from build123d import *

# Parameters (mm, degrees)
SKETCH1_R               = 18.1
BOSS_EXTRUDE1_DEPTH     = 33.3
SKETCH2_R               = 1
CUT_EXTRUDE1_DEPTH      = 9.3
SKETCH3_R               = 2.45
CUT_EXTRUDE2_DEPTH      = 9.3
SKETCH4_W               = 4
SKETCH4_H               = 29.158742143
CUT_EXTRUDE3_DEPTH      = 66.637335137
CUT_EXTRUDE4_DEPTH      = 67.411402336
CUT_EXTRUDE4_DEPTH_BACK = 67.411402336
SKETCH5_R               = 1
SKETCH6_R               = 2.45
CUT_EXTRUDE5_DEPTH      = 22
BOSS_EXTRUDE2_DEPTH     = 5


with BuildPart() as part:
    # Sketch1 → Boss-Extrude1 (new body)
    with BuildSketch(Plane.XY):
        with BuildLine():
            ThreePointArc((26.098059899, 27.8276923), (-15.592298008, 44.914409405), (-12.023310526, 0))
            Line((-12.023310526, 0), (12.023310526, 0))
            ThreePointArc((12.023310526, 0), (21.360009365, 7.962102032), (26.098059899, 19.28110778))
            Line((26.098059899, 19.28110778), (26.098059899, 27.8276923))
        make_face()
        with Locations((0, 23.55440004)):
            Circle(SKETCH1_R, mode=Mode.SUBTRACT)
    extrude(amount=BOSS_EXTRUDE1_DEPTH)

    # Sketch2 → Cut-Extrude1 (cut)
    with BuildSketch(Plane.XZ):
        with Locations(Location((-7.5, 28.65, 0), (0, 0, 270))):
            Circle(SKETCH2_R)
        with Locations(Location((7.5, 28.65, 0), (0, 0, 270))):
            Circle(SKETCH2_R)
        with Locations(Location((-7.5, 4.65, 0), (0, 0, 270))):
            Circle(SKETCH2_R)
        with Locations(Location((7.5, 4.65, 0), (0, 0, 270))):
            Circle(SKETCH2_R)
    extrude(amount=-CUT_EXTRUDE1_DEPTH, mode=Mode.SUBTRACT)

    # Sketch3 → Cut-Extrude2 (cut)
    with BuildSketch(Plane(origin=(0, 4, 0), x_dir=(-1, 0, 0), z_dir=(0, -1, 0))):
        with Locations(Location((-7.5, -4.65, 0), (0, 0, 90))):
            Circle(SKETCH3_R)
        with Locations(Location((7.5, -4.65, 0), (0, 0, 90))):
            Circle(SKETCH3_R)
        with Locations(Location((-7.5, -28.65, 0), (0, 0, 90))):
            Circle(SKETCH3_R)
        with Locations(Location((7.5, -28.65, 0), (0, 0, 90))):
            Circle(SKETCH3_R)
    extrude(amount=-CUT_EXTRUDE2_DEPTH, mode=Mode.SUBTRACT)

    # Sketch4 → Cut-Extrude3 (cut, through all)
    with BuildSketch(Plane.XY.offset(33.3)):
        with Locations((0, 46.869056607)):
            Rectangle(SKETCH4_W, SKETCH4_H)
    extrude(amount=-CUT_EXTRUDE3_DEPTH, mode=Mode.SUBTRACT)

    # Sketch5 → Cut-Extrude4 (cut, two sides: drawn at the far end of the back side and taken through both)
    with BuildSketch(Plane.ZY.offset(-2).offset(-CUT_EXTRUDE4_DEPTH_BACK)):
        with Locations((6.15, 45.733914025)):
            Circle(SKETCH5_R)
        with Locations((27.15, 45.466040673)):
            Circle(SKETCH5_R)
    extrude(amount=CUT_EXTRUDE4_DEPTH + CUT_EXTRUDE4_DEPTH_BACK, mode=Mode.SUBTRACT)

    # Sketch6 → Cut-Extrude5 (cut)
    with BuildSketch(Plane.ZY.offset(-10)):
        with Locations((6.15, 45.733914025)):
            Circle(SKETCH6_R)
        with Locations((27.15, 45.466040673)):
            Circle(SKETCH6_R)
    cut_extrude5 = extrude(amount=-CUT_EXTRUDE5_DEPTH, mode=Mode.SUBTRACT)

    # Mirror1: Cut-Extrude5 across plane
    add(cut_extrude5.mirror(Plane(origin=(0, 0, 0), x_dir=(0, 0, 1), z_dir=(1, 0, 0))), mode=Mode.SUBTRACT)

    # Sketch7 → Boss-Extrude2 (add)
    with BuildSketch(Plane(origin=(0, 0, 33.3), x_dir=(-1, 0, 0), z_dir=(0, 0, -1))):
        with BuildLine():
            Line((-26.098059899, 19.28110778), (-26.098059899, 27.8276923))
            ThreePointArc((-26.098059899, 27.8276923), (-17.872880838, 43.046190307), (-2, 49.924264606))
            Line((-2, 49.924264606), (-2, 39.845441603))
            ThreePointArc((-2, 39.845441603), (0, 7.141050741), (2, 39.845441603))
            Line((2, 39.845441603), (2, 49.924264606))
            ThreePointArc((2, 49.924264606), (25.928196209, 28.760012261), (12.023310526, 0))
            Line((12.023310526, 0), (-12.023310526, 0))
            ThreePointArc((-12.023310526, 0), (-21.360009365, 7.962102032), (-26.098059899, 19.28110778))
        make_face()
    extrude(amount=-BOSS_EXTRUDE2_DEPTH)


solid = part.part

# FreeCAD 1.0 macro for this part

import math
import FreeCAD as App
import Part
import Sketcher
Q = App.Units.Quantity

doc = App.newDocument("Part")
params = doc.addObject("Spreadsheet::Sheet", "Params")
for row, (alias, value) in enumerate([
    ("sketch1_diameter", "36.2 mm"),
    ("pad1_length", "33.3 mm"),
    ("sketch2_diameter", "2 mm"),
    ("pocket1_length", "9.3 mm"),
    ("sketch3_diameter", "4.9 mm"),
    ("pocket2_length", "9.3 mm"),
    ("sketch4_width", "4 mm"),
    ("sketch5_diameter", "2 mm"),
    ("sketch6_diameter", "4.9 mm"),
    ("pocket5_length", "22 mm"),
    ("pad2_length", "5 mm"),
], start=1):
    params.set(f"A{row}", alias)
    params.set(f"B{row}", "=" + value)
    params.setAlias(f"B{row}", alias)

body = doc.addObject("PartDesign::Body", "Body")

# Sketch on XY plane
sketch1 = doc.addObject("Sketcher::SketchObject", "Sketch")
body.addObject(sketch1)
sketch1.AttachmentSupport = (doc.XY_Plane, [""])
sketch1.MapMode = "FlatFace"
sketch1.addGeometry([
    Part.ArcOfCircle(Part.Circle(App.Vector(0, 24, 0), App.Vector(0, 0, 1), 26), math.radians(9), math.radians(243)),  # 0
    Part.LineSegment(App.Vector(-12, 0, 0), App.Vector(12, 0, 0)),  # 1
    Part.ArcOfCircle(Part.Circle(App.Vector(0, 24, 0), App.Vector(0, 0, 1), 26), math.radians(-63), math.radians(-9)),  # 2
    Part.LineSegment(App.Vector(26, 19, 0), App.Vector(26, 28, 0)),  # 3
    Part.Circle(App.Vector(0, 24, 0), App.Vector(0, 0, 1), 18),  # 4
], False)
sketch1.addConstraint([
    Sketcher.Constraint("Coincident", 0, 2, 1, 1),
    Sketcher.Constraint("Coincident", 1, 2, 2, 1),
    Sketcher.Constraint("Coincident", 2, 2, 3, 1),
    Sketcher.Constraint("Coincident", 3, 2, 0, 1),
    Sketcher.Constraint("Horizontal", 1),
    Sketcher.Constraint("Vertical", 3),
    Sketcher.Constraint("Coincident", 2, 3, 0, 3),
    Sketcher.Constraint("Coincident", 4, 3, 0, 3),
    Sketcher.Constraint("Equal", 0, 2),
    Sketcher.Constraint("Symmetric", 0, 2, 1, 2, -1, 1),
    Sketcher.Constraint("Diameter", 4, Q("36.2 mm")),
    Sketcher.Constraint("Radius", 0, Q("26.4456 mm")),
    Sketcher.Constraint("DistanceX", 1, 1, 1, 2, Q("24.046621 mm")),
    Sketcher.Constraint("DistanceY", 3, 1, 3, 2, Q("8.546585 mm")),
])
sketch1.setExpression("Constraints[10]", "Params.sketch1_diameter")
pad1 = doc.addObject("PartDesign::Pad", "Pad")
body.addObject(pad1)
pad1.Profile = sketch1
pad1.setExpression("Length", "Params.pad1_length")

# Sketch on XZ plane
sketch2 = doc.addObject("Sketcher::SketchObject", "Sketch001")
body.addObject(sketch2)
sketch2.AttachmentSupport = (doc.XZ_Plane, [""])
sketch2.MapMode = "FlatFace"
sketch2.addGeometry([
    Part.Circle(App.Vector(-7.5, 28.6, 0), App.Vector(0, 0, 1), 1),
    Part.Circle(App.Vector(7.5, 28.6, 0), App.Vector(0, 0, 1), 1),
    Part.Circle(App.Vector(-7.5, 4.7, 0), App.Vector(0, 0, 1), 1),
    Part.Circle(App.Vector(7.5, 4.7, 0), App.Vector(0, 0, 1), 1),
], False)
sketch2.addConstraint([
    Sketcher.Constraint("Equal", 0, 1),
    Sketcher.Constraint("Equal", 1, 2),
    Sketcher.Constraint("Equal", 2, 3),
    Sketcher.Constraint("Symmetric", 0, 3, 1, 3, -2),
    Sketcher.Constraint("Symmetric", 2, 3, 3, 3, -2),
    Sketcher.Constraint("Vertical", 0, 3, 2, 3),
    Sketcher.Constraint("Diameter", 0, Q("2 mm")),
    Sketcher.Constraint("DistanceX", 0, 3, 1, 3, Q("15 mm")),
    Sketcher.Constraint("DistanceY", 2, 3, 0, 3, Q("24 mm")),
    Sketcher.Constraint("DistanceY", -1, 1, 0, 3, Q("28.65 mm")),
])
sketch2.setExpression("Constraints[6]", "Params.sketch2_diameter")
pocket1 = doc.addObject("PartDesign::Pocket", "Pocket")
body.addObject(pocket1)
pocket1.Profile = sketch2
pocket1.setExpression("Length", "Params.pocket1_length")

# Sketch on XZ plane
sketch3 = doc.addObject("Sketcher::SketchObject", "Sketch002")
body.addObject(sketch3)
sketch3.AttachmentSupport = (doc.XZ_Plane, [""])
sketch3.MapMode = "FlatFace"
sketch3.AttachmentOffset = App.Placement(App.Vector(0, 0, -4), App.Rotation())
sketch3.addGeometry([
    Part.Circle(App.Vector(7.5, 4.7, 0), App.Vector(0, 0, 1), 2.5),
    Part.Circle(App.Vector(-7.5, 4.7, 0), App.Vector(0, 0, 1), 2.5),
    Part.Circle(App.Vector(7.5, 28.6, 0), App.Vector(0, 0, 1), 2.5),
    Part.Circle(App.Vector(-7.5, 28.6, 0), App.Vector(0, 0, 1), 2.5),
], False)
sketch3.addConstraint([
    Sketcher.Constraint("Equal", 0, 1),
    Sketcher.Constraint("Equal", 1, 2),
    Sketcher.Constraint("Equal", 2, 3),
    Sketcher.Constraint("Symmetric", 0, 3, 1, 3, -2),
    Sketcher.Constraint("Symmetric", 2, 3, 3, 3, -2),
    Sketcher.Constraint("Vertical", 0, 3, 2, 3),
    Sketcher.Constraint("Diameter", 0, Q("4.9 mm")),
    Sketcher.Constraint("DistanceX", 1, 3, 0, 3, Q("15 mm")),
    Sketcher.Constraint("DistanceY", 0, 3, 2, 3, Q("24 mm")),
    Sketcher.Constraint("DistanceY", -1, 1, 0, 3, Q("4.65 mm")),
])
sketch3.setExpression("Constraints[6]", "Params.sketch3_diameter")
pocket2 = doc.addObject("PartDesign::Pocket", "Pocket001")
body.addObject(pocket2)
pocket2.Profile = sketch3
pocket2.setExpression("Length", "Params.pocket2_length")

# Sketch on XY plane
sketch4 = doc.addObject("Sketcher::SketchObject", "Sketch003")
body.addObject(sketch4)
sketch4.AttachmentSupport = (doc.XY_Plane, [""])
sketch4.MapMode = "FlatFace"
sketch4.AttachmentOffset = App.Placement(App.Vector(0, 0, 33.3), App.Rotation())
sketch4.addGeometry([
    Part.LineSegment(App.Vector(-2, 61.4, 0), App.Vector(-2, 32.3, 0)),
    Part.LineSegment(App.Vector(-2, 32.3, 0), App.Vector(2, 32.3, 0)),
    Part.LineSegment(App.Vector(2, 32.3, 0), App.Vector(2, 61.4, 0)),
    Part.LineSegment(App.Vector(2, 61.4, 0), App.Vector(-2, 61.4, 0)),
], False)
sketch4.addConstraint([
    Sketcher.Constraint("Coincident", 0, 2, 1, 1),
    Sketcher.Constraint("Coincident", 1, 2, 2, 1),
    Sketcher.Constraint("Coincident", 2, 2, 3, 1),
    Sketcher.Constraint("Coincident", 3, 2, 0, 1),
    Sketcher.Constraint("Vertical", 0),
    Sketcher.Constraint("Horizontal", 1),
    Sketcher.Constraint("Vertical", 2),
    Sketcher.Constraint("Horizontal", 3),
    Sketcher.Constraint("DistanceX", 1, 1, 1, 2, Q("4 mm")),
    Sketcher.Constraint("DistanceX", 0, 2, -1, 1, Q("2 mm")),
    Sketcher.Constraint("DistanceY", 0, 2, 0, 1, Q("29.158742 mm")),
    Sketcher.Constraint("DistanceY", -1, 1, 0, 2, Q("32.289686 mm")),
])
sketch4.setExpression("Constraints[8]", "Params.sketch4_width")
pocket3 = doc.addObject("PartDesign::Pocket", "Pocket002")
body.addObject(pocket3)
pocket3.Profile = sketch4
pocket3.Type = "ThroughAll"

# Sketch on YZ plane
sketch5 = doc.addObject("Sketcher::SketchObject", "Sketch004")
body.addObject(sketch5)
sketch5.AttachmentSupport = (doc.YZ_Plane, [""])
sketch5.MapMode = "FlatFace"
sketch5.AttachmentOffset = App.Placement(App.Vector(0, 0, 2), App.Rotation())
sketch5.addGeometry([
    Part.Circle(App.Vector(45.7, 6.2, 0), App.Vector(0, 0, 1), 1),
    Part.Circle(App.Vector(45.5, 27.1, 0), App.Vector(0, 0, 1), 1),
], False)
sketch5.addConstraint([
    Sketcher.Constraint("Equal", 0, 1),
    Sketcher.Constraint("Diameter", 0, Q("2 mm")),
    Sketcher.Constraint("DistanceY", 0, 3, 1, 3, Q("21 mm")),
    Sketcher.Constraint("DistanceY", -1, 1, 0, 3, Q("6.15 mm")),
    Sketcher.Constraint("DistanceX", -1, 1, 1, 3, Q("45.466041 mm")),
    Sketcher.Constraint("DistanceX", -1, 1, 0, 3, Q("45.733914 mm")),
])
sketch5.setExpression("Constraints[1]", "Params.sketch5_diameter")
pocket4 = doc.addObject("PartDesign::Pocket", "Pocket003")
body.addObject(pocket4)
pocket4.Profile = sketch5
pocket4.Type = "ThroughAll"
pocket4.Midplane = True

# Sketch on YZ plane
sketch6 = doc.addObject("Sketcher::SketchObject", "Sketch005")
body.addObject(sketch6)
sketch6.AttachmentSupport = (doc.YZ_Plane, [""])
sketch6.MapMode = "FlatFace"
sketch6.AttachmentOffset = App.Placement(App.Vector(0, 0, 10), App.Rotation())
sketch6.addGeometry([
    Part.Circle(App.Vector(45.7, 6.2, 0), App.Vector(0, 0, 1), 2.5),
    Part.Circle(App.Vector(45.5, 27.1, 0), App.Vector(0, 0, 1), 2.5),
], False)
sketch6.addConstraint([
    Sketcher.Constraint("Equal", 0, 1),
    Sketcher.Constraint("Diameter", 0, Q("4.9 mm")),
    Sketcher.Constraint("DistanceY", 0, 3, 1, 3, Q("21 mm")),
    Sketcher.Constraint("DistanceY", -1, 1, 0, 3, Q("6.15 mm")),
    Sketcher.Constraint("DistanceX", -1, 1, 1, 3, Q("45.466041 mm")),
    Sketcher.Constraint("DistanceX", -1, 1, 0, 3, Q("45.733914 mm")),
])
sketch6.setExpression("Constraints[1]", "Params.sketch6_diameter")
pocket5 = doc.addObject("PartDesign::Pocket", "Pocket004")
body.addObject(pocket5)
pocket5.Profile = sketch6
pocket5.setExpression("Length", "Params.pocket5_length")
pocket5.Reversed = True
doc.recompute()

mirrored = doc.addObject("PartDesign::Mirrored", "Mirrored")
body.addObject(mirrored)
mirrored.Originals = [pocket5]
mirrored.MirrorPlane = (doc.YZ_Plane, [""])
body.Tip = mirrored

# Sketch on XY plane
sketch7 = doc.addObject("Sketcher::SketchObject", "Sketch006")
body.addObject(sketch7)
sketch7.AttachmentSupport = (doc.XY_Plane, [""])
sketch7.MapMode = "FlatFace"
sketch7.AttachmentOffset = App.Placement(App.Vector(0, 0, 33.3), App.Rotation())
sketch7.addGeometry([
    Part.LineSegment(App.Vector(26.1, 27.8, 0), App.Vector(26.1, 19.3, 0)),  # 0
    Part.ArcOfCircle(Part.Circle(App.Vector(0, 23.6, 0), App.Vector(0, 0, 1), 26.4), math.radians(-63), math.radians(-9)),  # 1
    Part.LineSegment(App.Vector(12, 0, 0), App.Vector(-12, 0, 0)),  # 2
    Part.ArcOfCircle(Part.Circle(App.Vector(0, 23.6, 0), App.Vector(0, 0, 1), 26.4), math.radians(94), math.radians(243)),  # 3
    Part.LineSegment(App.Vector(-2, 49.9, 0), App.Vector(-2, 39.8, 0)),  # 4
    Part.ArcOfCircle(Part.Circle(App.Vector(0, 23.6, 0), App.Vector(0, 0, 1), 16.4), math.radians(97), math.radians(443)),  # 5
    Part.LineSegment(App.Vector(2, 39.8, 0), App.Vector(2, 49.9, 0)),  # 6
    Part.ArcOfCircle(Part.Circle(App.Vector(0, 23.6, 0), App.Vector(0, 0, 1), 26.4), math.radians(9), math.radians(86)),  # 7
], False)
sketch7.addConstraint([
    Sketcher.Constraint("Coincident", 0, 2, 1, 2),
    Sketcher.Constraint("Coincident", 1, 1, 2, 1),
    Sketcher.Constraint("Coincident", 2, 2, 3, 2),
    Sketcher.Constraint("Coincident", 3, 1, 4, 1),
    Sketcher.Constraint("Coincident", 4, 2, 5, 1),
    Sketcher.Constraint("Coincident", 5, 2, 6, 1),
    Sketcher.Constraint("Coincident", 6, 2, 7, 2),
    Sketcher.Constraint("Coincident", 7, 1, 0, 1),
    Sketcher.Constraint("Vertical", 0),
    Sketcher.Constraint("Horizontal", 2),
    Sketcher.Constraint("Vertical", 4),
    Sketcher.Constraint("Vertical", 6),
    Sketcher.Constraint("Coincident", 3, 3, 1, 3),
    Sketcher.Constraint("Coincident", 5, 3, 1, 3),
    Sketcher.Constraint("Coincident", 7, 3, 1, 3),
    Sketcher.Constraint("Equal", 1, 3),
    Sketcher.Constraint("Equal", 3, 7),
    Sketcher.Constraint("Symmetric", 1, 1, 2, 2, -1, 1),
    Sketcher.Constraint("Horizontal", 4, 2, 5, 2),
    Sketcher.Constraint("DistanceX", 3, 1, -1, 1, Q("2 mm")),
    Sketcher.Constraint("Radius", 1, Q("26.4456 mm")),
    Sketcher.Constraint("Radius", 5, Q("16.413349 mm")),
    Sketcher.Constraint("DistanceX", 2, 2, 2, 1, Q("24.046621 mm")),
    Sketcher.Constraint("DistanceY", 0, 2, 0, 1, Q("8.546585 mm")),
])
pad2 = doc.addObject("PartDesign::Pad", "Pad001")
body.addObject(pad2)
pad2.Profile = sketch7
pad2.setExpression("Length", "Params.pad2_length")

doc.recompute()
